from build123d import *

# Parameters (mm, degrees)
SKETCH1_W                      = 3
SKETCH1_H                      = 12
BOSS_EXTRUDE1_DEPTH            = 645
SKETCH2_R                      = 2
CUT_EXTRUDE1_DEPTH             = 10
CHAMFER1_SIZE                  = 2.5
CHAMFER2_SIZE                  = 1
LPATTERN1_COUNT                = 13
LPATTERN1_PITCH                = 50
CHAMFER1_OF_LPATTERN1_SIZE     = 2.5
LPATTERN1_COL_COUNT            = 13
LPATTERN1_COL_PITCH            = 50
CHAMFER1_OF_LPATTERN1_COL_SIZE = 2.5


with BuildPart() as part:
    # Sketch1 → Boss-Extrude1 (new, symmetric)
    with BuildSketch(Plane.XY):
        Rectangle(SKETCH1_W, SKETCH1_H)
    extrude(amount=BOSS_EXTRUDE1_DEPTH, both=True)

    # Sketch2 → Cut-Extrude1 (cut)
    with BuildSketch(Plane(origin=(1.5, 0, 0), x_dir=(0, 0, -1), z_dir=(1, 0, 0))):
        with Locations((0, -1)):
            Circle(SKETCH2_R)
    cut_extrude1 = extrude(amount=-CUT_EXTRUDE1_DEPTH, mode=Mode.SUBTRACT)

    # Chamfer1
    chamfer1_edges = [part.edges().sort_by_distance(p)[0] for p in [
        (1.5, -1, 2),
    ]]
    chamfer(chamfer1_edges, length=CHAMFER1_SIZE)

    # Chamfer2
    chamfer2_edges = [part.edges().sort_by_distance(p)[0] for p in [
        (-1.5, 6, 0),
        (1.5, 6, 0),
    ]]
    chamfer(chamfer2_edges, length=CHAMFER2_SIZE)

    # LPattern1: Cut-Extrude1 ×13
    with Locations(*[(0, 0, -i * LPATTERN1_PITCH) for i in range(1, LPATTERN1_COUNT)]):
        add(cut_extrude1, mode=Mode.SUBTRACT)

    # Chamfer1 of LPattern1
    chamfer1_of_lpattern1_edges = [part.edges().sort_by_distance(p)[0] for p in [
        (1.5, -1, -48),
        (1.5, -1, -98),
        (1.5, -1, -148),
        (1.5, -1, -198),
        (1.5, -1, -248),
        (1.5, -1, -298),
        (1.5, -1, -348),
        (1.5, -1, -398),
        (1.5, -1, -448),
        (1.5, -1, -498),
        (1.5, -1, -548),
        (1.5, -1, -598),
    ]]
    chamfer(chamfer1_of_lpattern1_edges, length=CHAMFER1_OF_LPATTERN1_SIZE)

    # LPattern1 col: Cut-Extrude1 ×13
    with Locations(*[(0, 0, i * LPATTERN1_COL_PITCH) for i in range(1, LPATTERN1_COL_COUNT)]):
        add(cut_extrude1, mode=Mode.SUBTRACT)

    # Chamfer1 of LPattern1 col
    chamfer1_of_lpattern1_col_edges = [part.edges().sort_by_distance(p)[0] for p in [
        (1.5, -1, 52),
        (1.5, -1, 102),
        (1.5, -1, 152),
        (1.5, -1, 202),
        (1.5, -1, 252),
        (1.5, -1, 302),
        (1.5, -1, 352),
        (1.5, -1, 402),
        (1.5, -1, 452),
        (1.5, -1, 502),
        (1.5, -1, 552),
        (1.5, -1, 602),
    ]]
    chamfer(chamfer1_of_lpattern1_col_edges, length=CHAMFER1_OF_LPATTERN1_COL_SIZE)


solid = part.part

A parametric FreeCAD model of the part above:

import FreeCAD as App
import Part
import Sketcher
from FreeCAD import Vector


def edges_at(feature, points):
    """Names of the edges that pass closest to the given points."""
    edges = feature.Shape.Edges
    near = lambda p: min(range(len(edges)), key=lambda i: edges[i].distToShape(Part.Vertex(*p))[0])
    return sorted({f"Edge{near(p) + 1}" for p in points})


def add_polygon(sketch, points):
    """Adds a closed chain of lines whose ends are joined by coincident constraints."""
    first, n = sketch.GeometryCount, len(points)
    for a, b in zip(points, points[1:] + points[:1]):
        sketch.addGeometry(Part.LineSegment(App.Vector(*a, 0), App.Vector(*b, 0)), False)
    for i in range(n):
        sketch.addConstraint(Sketcher.Constraint("Coincident", first + i, 2, first + (i + 1) % n, 1))

doc = App.newDocument("Part")
params = doc.addObject("Spreadsheet::Sheet", "Params")
for row, (alias, value) in enumerate([
    ("sketch1_width", "3 mm"),
    ("sketch1_height", "12 mm"),
    ("pad1_length", "1290 mm"),
    ("sketch2_diameter", "4 mm"),
    ("pocket1_length", "10 mm"),
    ("chamfer_size", "2.5 mm"),
    ("chamfer2_size", "1 mm"),
    ("linearpattern_pitch", "50 mm"),
    ("chamfer3_size", "2.5 mm"),
    ("linearpattern2_pitch", "50 mm"),
    ("chamfer4_size", "2.5 mm"),
], start=1):
    params.set(f"A{row}", alias)
    params.set(f"B{row}", "=" + value)
    params.setAlias(f"B{row}", alias)

body = doc.addObject("PartDesign::Body", "Body")

# Sketch on XY plane
sketch1 = body.newObject("Sketcher::SketchObject", "Sketch")
sketch1.AttachmentSupport = (doc.getObject("XY_Plane"), [""])
sketch1.MapMode = "FlatFace"
add_polygon(sketch1, [(-1.5, 6), (-1.5, -6), (1.5, -6), (1.5, 6)])  # lines 0-3
sketch1.addConstraint([
    Sketcher.Constraint("Vertical", 0),
    Sketcher.Constraint("Horizontal", 1),
    Sketcher.Constraint("Vertical", 2),
    Sketcher.Constraint("Horizontal", 3),
    Sketcher.Constraint("Symmetric", 0, 2, 2, 2, -1, 1),
    Sketcher.Constraint("DistanceX", 1, 1, 1, 2, 3.0),
    Sketcher.Constraint("DistanceY", 0, 2, 0, 1, 12.0),
])
sketch1.setExpression("Constraints[9]", "Params.sketch1_width")
sketch1.setExpression("Constraints[10]", "Params.sketch1_height")
pad1 = body.newObject("PartDesign::Pad", "Pad")
pad1.Profile = sketch1
pad1.setExpression("Length", "Params.pad1_length")
pad1.Midplane = True

# Sketch on YZ plane
sketch2 = body.newObject("Sketcher::SketchObject", "Sketch001")
sketch2.AttachmentSupport = (doc.getObject("YZ_Plane"), [""])
sketch2.MapMode = "FlatFace"
sketch2.AttachmentOffset = App.Placement(Vector(0, 0, 1.5), App.Rotation())
sketch2.addGeometry(Part.Circle(Vector(-1, 0, 0), Vector(0, 0, 1), 2), False)
sketch2.addConstraint([
    Sketcher.Constraint("PointOnObject", 0, 3, -1),
    Sketcher.Constraint("Diameter", 0, 4.0),
    Sketcher.Constraint("DistanceX", 0, 3, -1, 1, 1.0),
])
sketch2.setExpression("Constraints[1]", "Params.sketch2_diameter")
pocket1 = body.newObject("PartDesign::Pocket", "Pocket")
pocket1.Profile = sketch2
pocket1.setExpression("Length", "Params.pocket1_length")
doc.recompute()

chamfer = body.newObject("PartDesign::Chamfer", "Chamfer")
chamfer.Base = (pocket1, edges_at(pocket1, [(1.5, -1, 2)]))
chamfer.setExpression("Size", "Params.chamfer_size")
doc.recompute()

chamfer2 = body.newObject("PartDesign::Chamfer", "Chamfer001")
chamfer2.Base = (chamfer, edges_at(chamfer, [(-1.5, 6, 0), (1.5, 6, 0)]))
chamfer2.setExpression("Size", "Params.chamfer2_size")
doc.recompute()

linearpattern = body.newObject("PartDesign::LinearPattern", "LinearPattern")
linearpattern.Originals = [pocket1]
linearpattern.Direction = (doc.getObject("Z_Axis"), [""])
linearpattern.Mode = "offset"
linearpattern.setExpression("Offset", "Params.linearpattern_pitch")
linearpattern.Occurrences = 13
linearpattern.Reversed = True
body.Tip = linearpattern
doc.recompute()

chamfer3 = body.newObject("PartDesign::Chamfer", "Chamfer002")
chamfer3.Base = (linearpattern, edges_at(linearpattern, [
    (1.5, -1, -48),
    (1.5, -1, -98),
    (1.5, -1, -148),
    (1.5, -1, -198),
    (1.5, -1, -248),
    (1.5, -1, -298),
    (1.5, -1, -348),
    (1.5, -1, -398),
    (1.5, -1, -448),
    (1.5, -1, -498),
    (1.5, -1, -548),
    (1.5, -1, -598),
]))
chamfer3.setExpression("Size", "Params.chamfer3_size")
doc.recompute()

linearpattern2 = body.newObject("PartDesign::LinearPattern", "LinearPattern001")
linearpattern2.Originals = [pocket1]
linearpattern2.Direction = (doc.getObject("Z_Axis"), [""])
linearpattern2.Mode = "offset"
linearpattern2.setExpression("Offset", "Params.linearpattern2_pitch")
linearpattern2.Occurrences = 13
body.Tip = linearpattern2
doc.recompute()

chamfer4 = body.newObject("PartDesign::Chamfer", "Chamfer003")
chamfer4.Base = (linearpattern2, edges_at(linearpattern2, [
    (1.5, -1, 52),
    (1.5, -1, 102),
    (1.5, -1, 152),
    (1.5, -1, 202),
    (1.5, -1, 252),
    (1.5, -1, 302),
    (1.5, -1, 352),
    (1.5, -1, 402),
    (1.5, -1, 452),
    (1.5, -1, 502),
    (1.5, -1, 552),
    (1.5, -1, 602),
]))
chamfer4.setExpression("Size", "Params.chamfer4_size")

doc.recompute()
